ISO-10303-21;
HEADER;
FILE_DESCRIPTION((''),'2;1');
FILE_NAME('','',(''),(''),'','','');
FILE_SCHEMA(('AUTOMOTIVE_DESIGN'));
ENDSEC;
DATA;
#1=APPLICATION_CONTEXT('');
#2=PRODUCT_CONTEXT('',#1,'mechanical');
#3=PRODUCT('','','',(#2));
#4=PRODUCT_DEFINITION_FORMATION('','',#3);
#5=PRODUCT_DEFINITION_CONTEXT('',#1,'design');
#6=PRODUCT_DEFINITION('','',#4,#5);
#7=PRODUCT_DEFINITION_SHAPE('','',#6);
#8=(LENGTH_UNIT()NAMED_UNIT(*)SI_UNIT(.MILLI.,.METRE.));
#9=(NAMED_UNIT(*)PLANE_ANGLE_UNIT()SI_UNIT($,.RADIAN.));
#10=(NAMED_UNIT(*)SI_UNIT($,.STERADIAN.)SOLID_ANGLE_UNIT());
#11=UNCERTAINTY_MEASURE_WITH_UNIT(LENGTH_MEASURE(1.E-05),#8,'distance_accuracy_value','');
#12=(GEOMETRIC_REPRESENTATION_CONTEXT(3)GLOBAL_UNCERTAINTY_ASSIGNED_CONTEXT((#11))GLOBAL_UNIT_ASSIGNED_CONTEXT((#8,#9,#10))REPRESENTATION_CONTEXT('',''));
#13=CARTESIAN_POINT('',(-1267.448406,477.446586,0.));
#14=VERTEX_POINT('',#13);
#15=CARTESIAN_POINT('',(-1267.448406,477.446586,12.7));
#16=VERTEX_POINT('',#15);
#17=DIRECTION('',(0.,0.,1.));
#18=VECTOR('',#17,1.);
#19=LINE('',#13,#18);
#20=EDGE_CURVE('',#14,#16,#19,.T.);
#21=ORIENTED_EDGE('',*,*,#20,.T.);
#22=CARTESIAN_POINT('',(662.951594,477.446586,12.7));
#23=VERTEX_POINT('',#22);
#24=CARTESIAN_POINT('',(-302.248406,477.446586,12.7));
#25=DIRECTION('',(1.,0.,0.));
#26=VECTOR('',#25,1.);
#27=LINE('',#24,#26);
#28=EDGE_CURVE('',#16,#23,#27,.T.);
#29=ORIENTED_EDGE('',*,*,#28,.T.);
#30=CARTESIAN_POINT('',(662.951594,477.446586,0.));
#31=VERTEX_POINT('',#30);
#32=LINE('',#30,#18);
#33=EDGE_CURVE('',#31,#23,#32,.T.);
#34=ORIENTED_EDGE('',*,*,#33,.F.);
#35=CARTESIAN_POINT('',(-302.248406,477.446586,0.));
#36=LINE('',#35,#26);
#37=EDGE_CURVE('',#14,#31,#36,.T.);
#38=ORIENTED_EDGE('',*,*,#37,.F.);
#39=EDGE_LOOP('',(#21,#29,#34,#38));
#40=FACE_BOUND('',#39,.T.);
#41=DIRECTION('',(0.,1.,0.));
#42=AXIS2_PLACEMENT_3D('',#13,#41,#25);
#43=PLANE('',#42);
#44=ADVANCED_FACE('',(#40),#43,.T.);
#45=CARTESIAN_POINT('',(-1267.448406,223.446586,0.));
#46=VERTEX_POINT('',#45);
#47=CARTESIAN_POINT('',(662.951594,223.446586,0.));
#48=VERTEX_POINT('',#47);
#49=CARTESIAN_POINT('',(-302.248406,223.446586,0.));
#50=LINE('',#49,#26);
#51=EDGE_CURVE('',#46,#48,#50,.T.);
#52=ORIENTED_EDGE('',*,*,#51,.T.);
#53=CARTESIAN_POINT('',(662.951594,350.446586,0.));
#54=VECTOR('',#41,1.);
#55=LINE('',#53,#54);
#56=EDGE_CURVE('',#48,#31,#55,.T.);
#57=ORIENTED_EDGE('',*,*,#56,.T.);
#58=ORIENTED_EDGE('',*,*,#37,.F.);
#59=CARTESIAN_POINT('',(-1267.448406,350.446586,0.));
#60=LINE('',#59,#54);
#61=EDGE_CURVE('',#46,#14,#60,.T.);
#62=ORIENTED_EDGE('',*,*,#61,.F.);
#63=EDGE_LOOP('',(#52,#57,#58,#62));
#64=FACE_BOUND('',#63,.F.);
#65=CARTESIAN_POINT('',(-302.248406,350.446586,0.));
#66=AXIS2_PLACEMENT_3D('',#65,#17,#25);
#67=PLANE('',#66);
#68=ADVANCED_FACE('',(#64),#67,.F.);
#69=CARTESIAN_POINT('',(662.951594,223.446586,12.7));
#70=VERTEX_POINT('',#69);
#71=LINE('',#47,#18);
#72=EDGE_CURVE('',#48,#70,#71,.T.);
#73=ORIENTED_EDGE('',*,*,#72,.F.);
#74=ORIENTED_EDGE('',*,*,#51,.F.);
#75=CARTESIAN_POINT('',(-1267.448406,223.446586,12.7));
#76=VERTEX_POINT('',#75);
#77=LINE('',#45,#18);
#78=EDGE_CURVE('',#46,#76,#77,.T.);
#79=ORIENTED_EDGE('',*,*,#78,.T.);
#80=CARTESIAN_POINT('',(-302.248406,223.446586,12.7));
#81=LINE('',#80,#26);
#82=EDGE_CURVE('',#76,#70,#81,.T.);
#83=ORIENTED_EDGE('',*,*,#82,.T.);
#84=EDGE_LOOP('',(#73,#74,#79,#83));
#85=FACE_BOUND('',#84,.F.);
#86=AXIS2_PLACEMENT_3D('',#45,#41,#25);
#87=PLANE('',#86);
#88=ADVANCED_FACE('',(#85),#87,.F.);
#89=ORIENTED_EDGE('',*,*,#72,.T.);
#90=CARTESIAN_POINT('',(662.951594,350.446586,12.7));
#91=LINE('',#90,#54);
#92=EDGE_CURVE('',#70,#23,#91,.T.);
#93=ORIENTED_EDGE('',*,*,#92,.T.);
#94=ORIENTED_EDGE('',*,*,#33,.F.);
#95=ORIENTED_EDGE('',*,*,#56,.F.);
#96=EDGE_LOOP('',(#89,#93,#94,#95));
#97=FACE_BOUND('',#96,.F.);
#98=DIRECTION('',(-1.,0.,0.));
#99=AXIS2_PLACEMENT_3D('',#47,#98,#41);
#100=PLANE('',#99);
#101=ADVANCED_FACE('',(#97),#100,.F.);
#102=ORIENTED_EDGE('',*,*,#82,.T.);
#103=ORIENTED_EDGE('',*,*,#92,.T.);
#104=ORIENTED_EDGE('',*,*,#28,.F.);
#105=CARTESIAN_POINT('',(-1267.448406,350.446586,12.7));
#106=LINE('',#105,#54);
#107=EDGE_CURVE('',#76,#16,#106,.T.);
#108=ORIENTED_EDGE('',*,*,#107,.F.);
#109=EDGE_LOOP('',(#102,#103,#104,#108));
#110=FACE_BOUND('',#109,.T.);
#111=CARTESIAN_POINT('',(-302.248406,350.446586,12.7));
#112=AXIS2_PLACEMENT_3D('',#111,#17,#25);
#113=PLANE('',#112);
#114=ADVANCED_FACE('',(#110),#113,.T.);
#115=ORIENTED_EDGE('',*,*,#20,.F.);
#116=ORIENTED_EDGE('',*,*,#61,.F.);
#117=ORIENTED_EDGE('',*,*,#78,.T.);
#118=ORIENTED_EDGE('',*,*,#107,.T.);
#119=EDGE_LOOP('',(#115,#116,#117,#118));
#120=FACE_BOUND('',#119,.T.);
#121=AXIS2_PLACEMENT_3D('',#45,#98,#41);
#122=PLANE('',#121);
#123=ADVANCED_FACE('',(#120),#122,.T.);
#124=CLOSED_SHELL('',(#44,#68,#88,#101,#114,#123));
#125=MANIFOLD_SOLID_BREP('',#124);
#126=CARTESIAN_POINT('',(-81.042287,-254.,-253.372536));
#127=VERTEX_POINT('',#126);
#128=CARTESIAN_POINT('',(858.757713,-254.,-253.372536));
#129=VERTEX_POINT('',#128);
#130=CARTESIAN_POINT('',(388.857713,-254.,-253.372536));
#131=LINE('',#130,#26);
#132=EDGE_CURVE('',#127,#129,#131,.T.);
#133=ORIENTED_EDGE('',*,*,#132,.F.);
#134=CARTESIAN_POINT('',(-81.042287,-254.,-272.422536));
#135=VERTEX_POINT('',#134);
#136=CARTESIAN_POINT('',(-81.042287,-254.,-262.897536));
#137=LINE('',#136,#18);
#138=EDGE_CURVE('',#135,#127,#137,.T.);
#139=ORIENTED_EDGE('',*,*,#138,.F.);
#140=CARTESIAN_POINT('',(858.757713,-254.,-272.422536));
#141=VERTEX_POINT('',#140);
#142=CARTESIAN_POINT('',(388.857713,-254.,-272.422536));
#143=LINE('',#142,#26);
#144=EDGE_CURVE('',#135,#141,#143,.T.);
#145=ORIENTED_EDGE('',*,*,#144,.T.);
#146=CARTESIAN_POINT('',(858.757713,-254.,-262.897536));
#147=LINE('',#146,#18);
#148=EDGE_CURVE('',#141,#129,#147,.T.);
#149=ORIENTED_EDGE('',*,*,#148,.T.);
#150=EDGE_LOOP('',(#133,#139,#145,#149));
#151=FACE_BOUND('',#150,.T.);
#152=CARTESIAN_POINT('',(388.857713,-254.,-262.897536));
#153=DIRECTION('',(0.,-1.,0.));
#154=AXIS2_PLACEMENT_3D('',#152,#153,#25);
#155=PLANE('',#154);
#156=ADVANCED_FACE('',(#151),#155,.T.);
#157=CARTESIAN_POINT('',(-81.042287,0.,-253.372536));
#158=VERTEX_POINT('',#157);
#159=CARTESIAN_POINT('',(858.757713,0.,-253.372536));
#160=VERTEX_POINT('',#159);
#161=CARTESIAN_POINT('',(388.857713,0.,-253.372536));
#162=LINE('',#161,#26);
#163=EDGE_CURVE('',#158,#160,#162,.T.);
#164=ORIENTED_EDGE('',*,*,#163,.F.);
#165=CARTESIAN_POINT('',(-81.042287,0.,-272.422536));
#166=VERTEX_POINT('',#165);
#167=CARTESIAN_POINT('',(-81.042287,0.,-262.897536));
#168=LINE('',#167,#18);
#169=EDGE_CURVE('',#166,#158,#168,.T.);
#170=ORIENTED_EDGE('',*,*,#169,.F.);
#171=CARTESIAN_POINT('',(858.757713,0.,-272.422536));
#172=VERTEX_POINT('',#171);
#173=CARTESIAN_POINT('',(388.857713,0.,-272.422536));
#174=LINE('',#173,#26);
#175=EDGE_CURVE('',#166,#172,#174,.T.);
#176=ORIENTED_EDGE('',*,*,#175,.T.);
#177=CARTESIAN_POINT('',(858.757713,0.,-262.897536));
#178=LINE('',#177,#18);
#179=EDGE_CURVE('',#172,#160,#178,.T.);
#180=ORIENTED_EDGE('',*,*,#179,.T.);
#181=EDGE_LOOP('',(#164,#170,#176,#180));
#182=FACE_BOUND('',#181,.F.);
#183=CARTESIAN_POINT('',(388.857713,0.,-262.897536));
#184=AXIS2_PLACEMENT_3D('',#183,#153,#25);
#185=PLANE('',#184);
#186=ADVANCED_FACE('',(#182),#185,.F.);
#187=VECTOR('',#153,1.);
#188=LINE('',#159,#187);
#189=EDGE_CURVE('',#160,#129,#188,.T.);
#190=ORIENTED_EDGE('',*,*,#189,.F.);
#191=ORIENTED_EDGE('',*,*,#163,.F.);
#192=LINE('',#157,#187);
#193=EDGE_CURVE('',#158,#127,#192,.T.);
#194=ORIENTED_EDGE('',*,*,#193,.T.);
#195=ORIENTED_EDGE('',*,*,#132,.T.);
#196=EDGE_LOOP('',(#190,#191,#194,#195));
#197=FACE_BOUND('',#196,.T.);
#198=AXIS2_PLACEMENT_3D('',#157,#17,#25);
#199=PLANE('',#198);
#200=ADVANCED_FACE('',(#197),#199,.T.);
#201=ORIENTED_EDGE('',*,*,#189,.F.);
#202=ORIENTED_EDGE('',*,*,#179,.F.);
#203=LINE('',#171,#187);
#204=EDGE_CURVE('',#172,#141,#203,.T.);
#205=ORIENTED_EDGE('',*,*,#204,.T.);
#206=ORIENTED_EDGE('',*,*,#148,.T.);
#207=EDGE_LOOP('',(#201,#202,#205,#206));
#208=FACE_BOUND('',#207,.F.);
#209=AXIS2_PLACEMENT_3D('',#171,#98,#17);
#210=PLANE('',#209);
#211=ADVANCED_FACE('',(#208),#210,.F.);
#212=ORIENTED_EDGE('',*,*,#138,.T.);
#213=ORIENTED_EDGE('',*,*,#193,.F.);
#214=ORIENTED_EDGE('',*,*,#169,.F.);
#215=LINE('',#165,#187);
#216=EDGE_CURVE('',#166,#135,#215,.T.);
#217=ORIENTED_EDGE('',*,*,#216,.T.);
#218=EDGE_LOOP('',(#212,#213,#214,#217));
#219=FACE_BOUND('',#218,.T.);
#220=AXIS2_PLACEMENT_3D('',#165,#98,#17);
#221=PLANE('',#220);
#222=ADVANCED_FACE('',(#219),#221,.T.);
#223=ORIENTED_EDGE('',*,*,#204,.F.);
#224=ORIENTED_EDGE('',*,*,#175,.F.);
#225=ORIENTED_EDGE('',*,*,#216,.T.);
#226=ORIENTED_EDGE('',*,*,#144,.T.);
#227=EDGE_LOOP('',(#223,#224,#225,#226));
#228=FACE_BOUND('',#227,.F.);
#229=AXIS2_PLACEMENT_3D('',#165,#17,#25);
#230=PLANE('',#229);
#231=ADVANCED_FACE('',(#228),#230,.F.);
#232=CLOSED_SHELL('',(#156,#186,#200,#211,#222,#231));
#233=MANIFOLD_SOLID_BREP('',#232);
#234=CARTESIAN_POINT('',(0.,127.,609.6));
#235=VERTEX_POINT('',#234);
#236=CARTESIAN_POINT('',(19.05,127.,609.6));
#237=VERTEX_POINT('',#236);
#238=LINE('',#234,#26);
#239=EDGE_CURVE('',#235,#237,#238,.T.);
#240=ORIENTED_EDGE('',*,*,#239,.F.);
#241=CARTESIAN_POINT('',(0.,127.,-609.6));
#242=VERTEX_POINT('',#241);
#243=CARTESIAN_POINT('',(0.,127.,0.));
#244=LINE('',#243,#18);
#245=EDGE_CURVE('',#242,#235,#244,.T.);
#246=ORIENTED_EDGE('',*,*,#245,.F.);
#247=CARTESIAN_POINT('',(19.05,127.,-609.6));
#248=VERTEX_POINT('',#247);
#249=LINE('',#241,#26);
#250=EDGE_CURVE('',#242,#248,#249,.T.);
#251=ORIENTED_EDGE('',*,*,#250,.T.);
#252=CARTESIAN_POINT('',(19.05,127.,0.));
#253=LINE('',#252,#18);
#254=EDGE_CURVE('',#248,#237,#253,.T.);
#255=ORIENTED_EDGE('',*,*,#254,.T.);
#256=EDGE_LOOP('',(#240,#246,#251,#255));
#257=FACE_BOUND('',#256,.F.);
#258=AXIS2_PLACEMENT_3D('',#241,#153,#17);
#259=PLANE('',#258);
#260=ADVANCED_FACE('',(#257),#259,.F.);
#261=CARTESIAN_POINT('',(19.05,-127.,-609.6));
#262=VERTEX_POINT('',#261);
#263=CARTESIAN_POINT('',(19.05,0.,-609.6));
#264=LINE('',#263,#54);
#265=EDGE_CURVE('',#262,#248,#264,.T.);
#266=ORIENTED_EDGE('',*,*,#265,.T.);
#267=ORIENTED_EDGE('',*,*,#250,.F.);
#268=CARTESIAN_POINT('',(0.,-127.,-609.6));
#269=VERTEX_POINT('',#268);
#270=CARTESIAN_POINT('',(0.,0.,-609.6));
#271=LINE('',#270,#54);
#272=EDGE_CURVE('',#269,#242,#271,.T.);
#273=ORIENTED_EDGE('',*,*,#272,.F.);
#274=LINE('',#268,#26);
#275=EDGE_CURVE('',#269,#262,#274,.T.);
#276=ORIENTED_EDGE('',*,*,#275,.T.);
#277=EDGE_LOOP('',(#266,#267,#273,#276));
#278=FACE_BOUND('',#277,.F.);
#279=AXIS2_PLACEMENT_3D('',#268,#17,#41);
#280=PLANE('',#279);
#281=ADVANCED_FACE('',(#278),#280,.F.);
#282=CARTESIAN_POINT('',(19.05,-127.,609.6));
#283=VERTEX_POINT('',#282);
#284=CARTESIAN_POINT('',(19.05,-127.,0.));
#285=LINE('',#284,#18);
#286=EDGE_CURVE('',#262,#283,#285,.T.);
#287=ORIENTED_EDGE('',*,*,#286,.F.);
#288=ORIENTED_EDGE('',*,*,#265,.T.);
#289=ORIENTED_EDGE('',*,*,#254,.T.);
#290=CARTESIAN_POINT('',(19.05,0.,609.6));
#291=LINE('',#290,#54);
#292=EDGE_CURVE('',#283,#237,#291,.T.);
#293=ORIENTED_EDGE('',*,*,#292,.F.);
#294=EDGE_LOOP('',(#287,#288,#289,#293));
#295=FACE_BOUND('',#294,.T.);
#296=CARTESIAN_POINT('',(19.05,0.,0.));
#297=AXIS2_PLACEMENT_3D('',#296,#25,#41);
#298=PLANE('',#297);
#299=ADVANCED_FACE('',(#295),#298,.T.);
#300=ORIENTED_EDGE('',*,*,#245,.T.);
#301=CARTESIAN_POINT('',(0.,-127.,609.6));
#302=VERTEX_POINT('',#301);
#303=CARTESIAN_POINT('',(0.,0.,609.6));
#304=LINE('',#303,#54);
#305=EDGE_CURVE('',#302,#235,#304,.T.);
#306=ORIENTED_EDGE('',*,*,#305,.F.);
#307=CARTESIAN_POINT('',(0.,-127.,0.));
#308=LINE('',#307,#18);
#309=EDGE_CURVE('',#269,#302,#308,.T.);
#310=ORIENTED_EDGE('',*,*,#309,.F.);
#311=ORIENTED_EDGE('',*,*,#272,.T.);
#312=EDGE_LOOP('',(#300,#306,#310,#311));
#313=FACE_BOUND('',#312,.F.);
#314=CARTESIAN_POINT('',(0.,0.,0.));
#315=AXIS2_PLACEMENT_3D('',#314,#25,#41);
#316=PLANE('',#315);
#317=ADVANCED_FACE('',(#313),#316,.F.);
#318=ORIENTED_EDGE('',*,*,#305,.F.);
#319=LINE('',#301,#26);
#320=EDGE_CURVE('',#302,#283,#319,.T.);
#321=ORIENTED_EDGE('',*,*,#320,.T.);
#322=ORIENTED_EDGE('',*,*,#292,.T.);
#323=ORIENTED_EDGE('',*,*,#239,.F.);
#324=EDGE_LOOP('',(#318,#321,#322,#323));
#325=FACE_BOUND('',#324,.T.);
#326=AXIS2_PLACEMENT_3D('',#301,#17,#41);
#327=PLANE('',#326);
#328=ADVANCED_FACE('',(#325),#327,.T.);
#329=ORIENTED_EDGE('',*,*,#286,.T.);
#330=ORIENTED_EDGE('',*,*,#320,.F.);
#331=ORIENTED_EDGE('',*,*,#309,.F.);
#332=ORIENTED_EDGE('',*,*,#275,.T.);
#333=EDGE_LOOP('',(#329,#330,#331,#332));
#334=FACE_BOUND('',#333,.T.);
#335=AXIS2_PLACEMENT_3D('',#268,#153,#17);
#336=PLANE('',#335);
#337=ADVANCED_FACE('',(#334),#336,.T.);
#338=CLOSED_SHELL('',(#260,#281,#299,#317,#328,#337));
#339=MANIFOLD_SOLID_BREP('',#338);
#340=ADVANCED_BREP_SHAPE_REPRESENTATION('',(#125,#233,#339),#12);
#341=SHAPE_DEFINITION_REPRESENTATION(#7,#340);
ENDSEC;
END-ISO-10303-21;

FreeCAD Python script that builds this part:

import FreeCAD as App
import Part
import Sketcher
from FreeCAD import Vector
Q = App.Units.Quantity

doc = App.newDocument("Part")
body = doc.addObject("PartDesign::Body", "Body")

# Sketch on YZ plane
sketch1 = body.newObject("Sketcher::SketchObject", "Sketch")
sketch1.AttachmentSupport = (doc.getObject("YZ_Plane"), [""])
sketch1.MapMode = "FlatFace"
sketch1.addGeometry([
    Part.LineSegment(Vector(-127, 609.6, 0), Vector(-127, -609.6, 0)),
    Part.LineSegment(Vector(-127, -609.6, 0), Vector(127, -609.6, 0)),
    Part.LineSegment(Vector(127, -609.6, 0), Vector(127, 609.6, 0)),
    Part.LineSegment(Vector(127, 609.6, 0), Vector(-127, 609.6, 0)),
], False)
sketch1.addConstraint([
    Sketcher.Constraint("Coincident", 0, 2, 1, 1),
    Sketcher.Constraint("Coincident", 1, 2, 2, 1),
    Sketcher.Constraint("Coincident", 2, 2, 3, 1),
    Sketcher.Constraint("Coincident", 3, 2, 0, 1),
    Sketcher.Constraint("Vertical", 0),
    Sketcher.Constraint("Horizontal", 1),
    Sketcher.Constraint("Vertical", 2),
    Sketcher.Constraint("Horizontal", 3),
    Sketcher.Constraint("Symmetric", 0, 2, 2, 2, -1, 1),
    Sketcher.Constraint("DistanceX", 1, 1, 1, 2, Q("10 in")),
    Sketcher.Constraint("DistanceY", 0, 2, 0, 1, Q("48 in")),
])
pad1 = body.newObject("PartDesign::Pad", "Pad")
pad1.Profile = sketch1
pad1.Length = Q("0.75 in")
body2 = doc.addObject("PartDesign::Body", "Body001")

# Sketch on XY plane
sketch2 = body2.newObject("Sketcher::SketchObject", "Sketch001")
sketch2.AttachmentSupport = (doc.getObject("XY_Plane001"), [""])
sketch2.MapMode = "FlatFace"
sketch2.addGeometry([
    Part.LineSegment(Vector(-1267.448406, 477.446586, 0), Vector(-1267.448406, 223.446586, 0)),
    Part.LineSegment(Vector(-1267.448406, 223.446586, 0), Vector(662.951594, 223.446586, 0)),
    Part.LineSegment(Vector(662.951594, 223.446586, 0), Vector(662.951594, 477.446586, 0)),
    Part.LineSegment(Vector(662.951594, 477.446586, 0), Vector(-1267.448406, 477.446586, 0)),
], False)
sketch2.addConstraint([
    Sketcher.Constraint("Coincident", 0, 2, 1, 1),
    Sketcher.Constraint("Coincident", 1, 2, 2, 1),
    Sketcher.Constraint("Coincident", 2, 2, 3, 1),
    Sketcher.Constraint("Coincident", 3, 2, 0, 1),
    Sketcher.Constraint("Vertical", 0),
    Sketcher.Constraint("Horizontal", 1),
    Sketcher.Constraint("Vertical", 2),
    Sketcher.Constraint("Horizontal", 3),
    Sketcher.Constraint("DistanceX", 1, 1, 1, 2, Q("76 in")),
    Sketcher.Constraint("DistanceY", 0, 2, 0, 1, Q("10 in")),
    Sketcher.Constraint("DistanceX", 0, 2, -1, 1, 1267.448406),
    Sketcher.Constraint("DistanceY", -1, 1, 0, 2, 223.446586),
])
pad2 = body2.newObject("PartDesign::Pad", "Pad001")
pad2.Profile = sketch2
pad2.Length = Q("0.5 in")
body3 = doc.addObject("PartDesign::Body", "Body002")

# Sketch on XZ plane
sketch3 = body3.newObject("Sketcher::SketchObject", "Sketch002")
sketch3.AttachmentSupport = (doc.getObject("XZ_Plane002"), [""])
sketch3.MapMode = "FlatFace"
sketch3.addGeometry([
    Part.LineSegment(Vector(-81.042287, -253.372536, 0), Vector(-81.042287, -272.422536, 0)),
    Part.LineSegment(Vector(-81.042287, -272.422536, 0), Vector(858.757713, -272.422536, 0)),
    Part.LineSegment(Vector(858.757713, -272.422536, 0), Vector(858.757713, -253.372536, 0)),
    Part.LineSegment(Vector(858.757713, -253.372536, 0), Vector(-81.042287, -253.372536, 0)),
], False)
sketch3.addConstraint([
    Sketcher.Constraint("Coincident", 0, 2, 1, 1),
    Sketcher.Constraint("Coincident", 1, 2, 2, 1),
    Sketcher.Constraint("Coincident", 2, 2, 3, 1),
    Sketcher.Constraint("Coincident", 3, 2, 0, 1),
    Sketcher.Constraint("Vertical", 0),
    Sketcher.Constraint("Horizontal", 1),
    Sketcher.Constraint("Vertical", 2),
    Sketcher.Constraint("Horizontal", 3),
    Sketcher.Constraint("DistanceX", 1, 1, 1, 2, Q("37 in")),
    Sketcher.Constraint("DistanceY", 0, 2, 0, 1, Q("0.75 in")),
    Sketcher.Constraint("DistanceX", 0, 2, -1, 1, 81.042287),
    Sketcher.Constraint("DistanceY", 0, 2, -1, 1, 272.422536),
])
pad3 = body3.newObject("PartDesign::Pad", "Pad002")
pad3.Profile = sketch3
pad3.Length = Q("10 in")

doc.recompute()
